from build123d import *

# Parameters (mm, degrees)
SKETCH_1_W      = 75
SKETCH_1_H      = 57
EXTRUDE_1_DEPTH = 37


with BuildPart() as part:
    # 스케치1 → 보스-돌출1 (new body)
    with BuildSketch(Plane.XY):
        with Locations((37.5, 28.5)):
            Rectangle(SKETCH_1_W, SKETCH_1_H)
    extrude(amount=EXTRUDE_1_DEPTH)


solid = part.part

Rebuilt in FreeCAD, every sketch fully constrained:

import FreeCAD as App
import Part
import Sketcher
Q = App.Units.Quantity


def add_polygon(sketch, points):
    """Adds a closed chain of lines whose ends are joined by coincident constraints."""
    first, n = sketch.GeometryCount, len(points)
    for a, b in zip(points, points[1:] + points[:1]):
        sketch.addGeometry(Part.LineSegment(App.Vector(*a, 0), App.Vector(*b, 0)), False)
    for i in range(n):
        sketch.addConstraint(Sketcher.Constraint("Coincident", first + i, 2, first + (i + 1) % n, 1))

doc = App.newDocument("Part")
params = doc.addObject("Spreadsheet::Sheet", "Params")
for row, (alias, value) in enumerate([
    ("sketch1_width", "75 mm"),
    ("sketch1_height", "57 mm"),
    ("pad1_length", "37 mm"),
], start=1):
    params.set(f"A{row}", alias)
    params.set(f"B{row}", "=" + value)
    params.setAlias(f"B{row}", alias)

body = doc.addObject("PartDesign::Body", "Body")

# Sketch on XY plane
sketch1 = doc.addObject("Sketcher::SketchObject", "Sketch")
body.addObject(sketch1)
sketch1.AttachmentSupport = (doc.XY_Plane, [""])
sketch1.MapMode = "FlatFace"
add_polygon(sketch1, [(0, 57), (0, 0), (75, 0), (75, 57)])  # lines 0-3
sketch1.addConstraint([
    Sketcher.Constraint("Vertical", 0),
    Sketcher.Constraint("Horizontal", 1),
    Sketcher.Constraint("Vertical", 2),
    Sketcher.Constraint("Horizontal", 3),
    Sketcher.Constraint("Coincident", 0, 2, -1, 1),
    Sketcher.Constraint("DistanceX", 1, 1, 1, 2, Q("75 mm")),
    Sketcher.Constraint("DistanceY", 0, 2, 0, 1, Q("57 mm")),
])
sketch1.setExpression("Constraints[9]", "Params.sketch1_width")
sketch1.setExpression("Constraints[10]", "Params.sketch1_height")
pad1 = doc.addObject("PartDesign::Pad", "Pad")
body.addObject(pad1)
pad1.Profile = sketch1
pad1.setExpression("Length", "Params.pad1_length")

doc.recompute()
